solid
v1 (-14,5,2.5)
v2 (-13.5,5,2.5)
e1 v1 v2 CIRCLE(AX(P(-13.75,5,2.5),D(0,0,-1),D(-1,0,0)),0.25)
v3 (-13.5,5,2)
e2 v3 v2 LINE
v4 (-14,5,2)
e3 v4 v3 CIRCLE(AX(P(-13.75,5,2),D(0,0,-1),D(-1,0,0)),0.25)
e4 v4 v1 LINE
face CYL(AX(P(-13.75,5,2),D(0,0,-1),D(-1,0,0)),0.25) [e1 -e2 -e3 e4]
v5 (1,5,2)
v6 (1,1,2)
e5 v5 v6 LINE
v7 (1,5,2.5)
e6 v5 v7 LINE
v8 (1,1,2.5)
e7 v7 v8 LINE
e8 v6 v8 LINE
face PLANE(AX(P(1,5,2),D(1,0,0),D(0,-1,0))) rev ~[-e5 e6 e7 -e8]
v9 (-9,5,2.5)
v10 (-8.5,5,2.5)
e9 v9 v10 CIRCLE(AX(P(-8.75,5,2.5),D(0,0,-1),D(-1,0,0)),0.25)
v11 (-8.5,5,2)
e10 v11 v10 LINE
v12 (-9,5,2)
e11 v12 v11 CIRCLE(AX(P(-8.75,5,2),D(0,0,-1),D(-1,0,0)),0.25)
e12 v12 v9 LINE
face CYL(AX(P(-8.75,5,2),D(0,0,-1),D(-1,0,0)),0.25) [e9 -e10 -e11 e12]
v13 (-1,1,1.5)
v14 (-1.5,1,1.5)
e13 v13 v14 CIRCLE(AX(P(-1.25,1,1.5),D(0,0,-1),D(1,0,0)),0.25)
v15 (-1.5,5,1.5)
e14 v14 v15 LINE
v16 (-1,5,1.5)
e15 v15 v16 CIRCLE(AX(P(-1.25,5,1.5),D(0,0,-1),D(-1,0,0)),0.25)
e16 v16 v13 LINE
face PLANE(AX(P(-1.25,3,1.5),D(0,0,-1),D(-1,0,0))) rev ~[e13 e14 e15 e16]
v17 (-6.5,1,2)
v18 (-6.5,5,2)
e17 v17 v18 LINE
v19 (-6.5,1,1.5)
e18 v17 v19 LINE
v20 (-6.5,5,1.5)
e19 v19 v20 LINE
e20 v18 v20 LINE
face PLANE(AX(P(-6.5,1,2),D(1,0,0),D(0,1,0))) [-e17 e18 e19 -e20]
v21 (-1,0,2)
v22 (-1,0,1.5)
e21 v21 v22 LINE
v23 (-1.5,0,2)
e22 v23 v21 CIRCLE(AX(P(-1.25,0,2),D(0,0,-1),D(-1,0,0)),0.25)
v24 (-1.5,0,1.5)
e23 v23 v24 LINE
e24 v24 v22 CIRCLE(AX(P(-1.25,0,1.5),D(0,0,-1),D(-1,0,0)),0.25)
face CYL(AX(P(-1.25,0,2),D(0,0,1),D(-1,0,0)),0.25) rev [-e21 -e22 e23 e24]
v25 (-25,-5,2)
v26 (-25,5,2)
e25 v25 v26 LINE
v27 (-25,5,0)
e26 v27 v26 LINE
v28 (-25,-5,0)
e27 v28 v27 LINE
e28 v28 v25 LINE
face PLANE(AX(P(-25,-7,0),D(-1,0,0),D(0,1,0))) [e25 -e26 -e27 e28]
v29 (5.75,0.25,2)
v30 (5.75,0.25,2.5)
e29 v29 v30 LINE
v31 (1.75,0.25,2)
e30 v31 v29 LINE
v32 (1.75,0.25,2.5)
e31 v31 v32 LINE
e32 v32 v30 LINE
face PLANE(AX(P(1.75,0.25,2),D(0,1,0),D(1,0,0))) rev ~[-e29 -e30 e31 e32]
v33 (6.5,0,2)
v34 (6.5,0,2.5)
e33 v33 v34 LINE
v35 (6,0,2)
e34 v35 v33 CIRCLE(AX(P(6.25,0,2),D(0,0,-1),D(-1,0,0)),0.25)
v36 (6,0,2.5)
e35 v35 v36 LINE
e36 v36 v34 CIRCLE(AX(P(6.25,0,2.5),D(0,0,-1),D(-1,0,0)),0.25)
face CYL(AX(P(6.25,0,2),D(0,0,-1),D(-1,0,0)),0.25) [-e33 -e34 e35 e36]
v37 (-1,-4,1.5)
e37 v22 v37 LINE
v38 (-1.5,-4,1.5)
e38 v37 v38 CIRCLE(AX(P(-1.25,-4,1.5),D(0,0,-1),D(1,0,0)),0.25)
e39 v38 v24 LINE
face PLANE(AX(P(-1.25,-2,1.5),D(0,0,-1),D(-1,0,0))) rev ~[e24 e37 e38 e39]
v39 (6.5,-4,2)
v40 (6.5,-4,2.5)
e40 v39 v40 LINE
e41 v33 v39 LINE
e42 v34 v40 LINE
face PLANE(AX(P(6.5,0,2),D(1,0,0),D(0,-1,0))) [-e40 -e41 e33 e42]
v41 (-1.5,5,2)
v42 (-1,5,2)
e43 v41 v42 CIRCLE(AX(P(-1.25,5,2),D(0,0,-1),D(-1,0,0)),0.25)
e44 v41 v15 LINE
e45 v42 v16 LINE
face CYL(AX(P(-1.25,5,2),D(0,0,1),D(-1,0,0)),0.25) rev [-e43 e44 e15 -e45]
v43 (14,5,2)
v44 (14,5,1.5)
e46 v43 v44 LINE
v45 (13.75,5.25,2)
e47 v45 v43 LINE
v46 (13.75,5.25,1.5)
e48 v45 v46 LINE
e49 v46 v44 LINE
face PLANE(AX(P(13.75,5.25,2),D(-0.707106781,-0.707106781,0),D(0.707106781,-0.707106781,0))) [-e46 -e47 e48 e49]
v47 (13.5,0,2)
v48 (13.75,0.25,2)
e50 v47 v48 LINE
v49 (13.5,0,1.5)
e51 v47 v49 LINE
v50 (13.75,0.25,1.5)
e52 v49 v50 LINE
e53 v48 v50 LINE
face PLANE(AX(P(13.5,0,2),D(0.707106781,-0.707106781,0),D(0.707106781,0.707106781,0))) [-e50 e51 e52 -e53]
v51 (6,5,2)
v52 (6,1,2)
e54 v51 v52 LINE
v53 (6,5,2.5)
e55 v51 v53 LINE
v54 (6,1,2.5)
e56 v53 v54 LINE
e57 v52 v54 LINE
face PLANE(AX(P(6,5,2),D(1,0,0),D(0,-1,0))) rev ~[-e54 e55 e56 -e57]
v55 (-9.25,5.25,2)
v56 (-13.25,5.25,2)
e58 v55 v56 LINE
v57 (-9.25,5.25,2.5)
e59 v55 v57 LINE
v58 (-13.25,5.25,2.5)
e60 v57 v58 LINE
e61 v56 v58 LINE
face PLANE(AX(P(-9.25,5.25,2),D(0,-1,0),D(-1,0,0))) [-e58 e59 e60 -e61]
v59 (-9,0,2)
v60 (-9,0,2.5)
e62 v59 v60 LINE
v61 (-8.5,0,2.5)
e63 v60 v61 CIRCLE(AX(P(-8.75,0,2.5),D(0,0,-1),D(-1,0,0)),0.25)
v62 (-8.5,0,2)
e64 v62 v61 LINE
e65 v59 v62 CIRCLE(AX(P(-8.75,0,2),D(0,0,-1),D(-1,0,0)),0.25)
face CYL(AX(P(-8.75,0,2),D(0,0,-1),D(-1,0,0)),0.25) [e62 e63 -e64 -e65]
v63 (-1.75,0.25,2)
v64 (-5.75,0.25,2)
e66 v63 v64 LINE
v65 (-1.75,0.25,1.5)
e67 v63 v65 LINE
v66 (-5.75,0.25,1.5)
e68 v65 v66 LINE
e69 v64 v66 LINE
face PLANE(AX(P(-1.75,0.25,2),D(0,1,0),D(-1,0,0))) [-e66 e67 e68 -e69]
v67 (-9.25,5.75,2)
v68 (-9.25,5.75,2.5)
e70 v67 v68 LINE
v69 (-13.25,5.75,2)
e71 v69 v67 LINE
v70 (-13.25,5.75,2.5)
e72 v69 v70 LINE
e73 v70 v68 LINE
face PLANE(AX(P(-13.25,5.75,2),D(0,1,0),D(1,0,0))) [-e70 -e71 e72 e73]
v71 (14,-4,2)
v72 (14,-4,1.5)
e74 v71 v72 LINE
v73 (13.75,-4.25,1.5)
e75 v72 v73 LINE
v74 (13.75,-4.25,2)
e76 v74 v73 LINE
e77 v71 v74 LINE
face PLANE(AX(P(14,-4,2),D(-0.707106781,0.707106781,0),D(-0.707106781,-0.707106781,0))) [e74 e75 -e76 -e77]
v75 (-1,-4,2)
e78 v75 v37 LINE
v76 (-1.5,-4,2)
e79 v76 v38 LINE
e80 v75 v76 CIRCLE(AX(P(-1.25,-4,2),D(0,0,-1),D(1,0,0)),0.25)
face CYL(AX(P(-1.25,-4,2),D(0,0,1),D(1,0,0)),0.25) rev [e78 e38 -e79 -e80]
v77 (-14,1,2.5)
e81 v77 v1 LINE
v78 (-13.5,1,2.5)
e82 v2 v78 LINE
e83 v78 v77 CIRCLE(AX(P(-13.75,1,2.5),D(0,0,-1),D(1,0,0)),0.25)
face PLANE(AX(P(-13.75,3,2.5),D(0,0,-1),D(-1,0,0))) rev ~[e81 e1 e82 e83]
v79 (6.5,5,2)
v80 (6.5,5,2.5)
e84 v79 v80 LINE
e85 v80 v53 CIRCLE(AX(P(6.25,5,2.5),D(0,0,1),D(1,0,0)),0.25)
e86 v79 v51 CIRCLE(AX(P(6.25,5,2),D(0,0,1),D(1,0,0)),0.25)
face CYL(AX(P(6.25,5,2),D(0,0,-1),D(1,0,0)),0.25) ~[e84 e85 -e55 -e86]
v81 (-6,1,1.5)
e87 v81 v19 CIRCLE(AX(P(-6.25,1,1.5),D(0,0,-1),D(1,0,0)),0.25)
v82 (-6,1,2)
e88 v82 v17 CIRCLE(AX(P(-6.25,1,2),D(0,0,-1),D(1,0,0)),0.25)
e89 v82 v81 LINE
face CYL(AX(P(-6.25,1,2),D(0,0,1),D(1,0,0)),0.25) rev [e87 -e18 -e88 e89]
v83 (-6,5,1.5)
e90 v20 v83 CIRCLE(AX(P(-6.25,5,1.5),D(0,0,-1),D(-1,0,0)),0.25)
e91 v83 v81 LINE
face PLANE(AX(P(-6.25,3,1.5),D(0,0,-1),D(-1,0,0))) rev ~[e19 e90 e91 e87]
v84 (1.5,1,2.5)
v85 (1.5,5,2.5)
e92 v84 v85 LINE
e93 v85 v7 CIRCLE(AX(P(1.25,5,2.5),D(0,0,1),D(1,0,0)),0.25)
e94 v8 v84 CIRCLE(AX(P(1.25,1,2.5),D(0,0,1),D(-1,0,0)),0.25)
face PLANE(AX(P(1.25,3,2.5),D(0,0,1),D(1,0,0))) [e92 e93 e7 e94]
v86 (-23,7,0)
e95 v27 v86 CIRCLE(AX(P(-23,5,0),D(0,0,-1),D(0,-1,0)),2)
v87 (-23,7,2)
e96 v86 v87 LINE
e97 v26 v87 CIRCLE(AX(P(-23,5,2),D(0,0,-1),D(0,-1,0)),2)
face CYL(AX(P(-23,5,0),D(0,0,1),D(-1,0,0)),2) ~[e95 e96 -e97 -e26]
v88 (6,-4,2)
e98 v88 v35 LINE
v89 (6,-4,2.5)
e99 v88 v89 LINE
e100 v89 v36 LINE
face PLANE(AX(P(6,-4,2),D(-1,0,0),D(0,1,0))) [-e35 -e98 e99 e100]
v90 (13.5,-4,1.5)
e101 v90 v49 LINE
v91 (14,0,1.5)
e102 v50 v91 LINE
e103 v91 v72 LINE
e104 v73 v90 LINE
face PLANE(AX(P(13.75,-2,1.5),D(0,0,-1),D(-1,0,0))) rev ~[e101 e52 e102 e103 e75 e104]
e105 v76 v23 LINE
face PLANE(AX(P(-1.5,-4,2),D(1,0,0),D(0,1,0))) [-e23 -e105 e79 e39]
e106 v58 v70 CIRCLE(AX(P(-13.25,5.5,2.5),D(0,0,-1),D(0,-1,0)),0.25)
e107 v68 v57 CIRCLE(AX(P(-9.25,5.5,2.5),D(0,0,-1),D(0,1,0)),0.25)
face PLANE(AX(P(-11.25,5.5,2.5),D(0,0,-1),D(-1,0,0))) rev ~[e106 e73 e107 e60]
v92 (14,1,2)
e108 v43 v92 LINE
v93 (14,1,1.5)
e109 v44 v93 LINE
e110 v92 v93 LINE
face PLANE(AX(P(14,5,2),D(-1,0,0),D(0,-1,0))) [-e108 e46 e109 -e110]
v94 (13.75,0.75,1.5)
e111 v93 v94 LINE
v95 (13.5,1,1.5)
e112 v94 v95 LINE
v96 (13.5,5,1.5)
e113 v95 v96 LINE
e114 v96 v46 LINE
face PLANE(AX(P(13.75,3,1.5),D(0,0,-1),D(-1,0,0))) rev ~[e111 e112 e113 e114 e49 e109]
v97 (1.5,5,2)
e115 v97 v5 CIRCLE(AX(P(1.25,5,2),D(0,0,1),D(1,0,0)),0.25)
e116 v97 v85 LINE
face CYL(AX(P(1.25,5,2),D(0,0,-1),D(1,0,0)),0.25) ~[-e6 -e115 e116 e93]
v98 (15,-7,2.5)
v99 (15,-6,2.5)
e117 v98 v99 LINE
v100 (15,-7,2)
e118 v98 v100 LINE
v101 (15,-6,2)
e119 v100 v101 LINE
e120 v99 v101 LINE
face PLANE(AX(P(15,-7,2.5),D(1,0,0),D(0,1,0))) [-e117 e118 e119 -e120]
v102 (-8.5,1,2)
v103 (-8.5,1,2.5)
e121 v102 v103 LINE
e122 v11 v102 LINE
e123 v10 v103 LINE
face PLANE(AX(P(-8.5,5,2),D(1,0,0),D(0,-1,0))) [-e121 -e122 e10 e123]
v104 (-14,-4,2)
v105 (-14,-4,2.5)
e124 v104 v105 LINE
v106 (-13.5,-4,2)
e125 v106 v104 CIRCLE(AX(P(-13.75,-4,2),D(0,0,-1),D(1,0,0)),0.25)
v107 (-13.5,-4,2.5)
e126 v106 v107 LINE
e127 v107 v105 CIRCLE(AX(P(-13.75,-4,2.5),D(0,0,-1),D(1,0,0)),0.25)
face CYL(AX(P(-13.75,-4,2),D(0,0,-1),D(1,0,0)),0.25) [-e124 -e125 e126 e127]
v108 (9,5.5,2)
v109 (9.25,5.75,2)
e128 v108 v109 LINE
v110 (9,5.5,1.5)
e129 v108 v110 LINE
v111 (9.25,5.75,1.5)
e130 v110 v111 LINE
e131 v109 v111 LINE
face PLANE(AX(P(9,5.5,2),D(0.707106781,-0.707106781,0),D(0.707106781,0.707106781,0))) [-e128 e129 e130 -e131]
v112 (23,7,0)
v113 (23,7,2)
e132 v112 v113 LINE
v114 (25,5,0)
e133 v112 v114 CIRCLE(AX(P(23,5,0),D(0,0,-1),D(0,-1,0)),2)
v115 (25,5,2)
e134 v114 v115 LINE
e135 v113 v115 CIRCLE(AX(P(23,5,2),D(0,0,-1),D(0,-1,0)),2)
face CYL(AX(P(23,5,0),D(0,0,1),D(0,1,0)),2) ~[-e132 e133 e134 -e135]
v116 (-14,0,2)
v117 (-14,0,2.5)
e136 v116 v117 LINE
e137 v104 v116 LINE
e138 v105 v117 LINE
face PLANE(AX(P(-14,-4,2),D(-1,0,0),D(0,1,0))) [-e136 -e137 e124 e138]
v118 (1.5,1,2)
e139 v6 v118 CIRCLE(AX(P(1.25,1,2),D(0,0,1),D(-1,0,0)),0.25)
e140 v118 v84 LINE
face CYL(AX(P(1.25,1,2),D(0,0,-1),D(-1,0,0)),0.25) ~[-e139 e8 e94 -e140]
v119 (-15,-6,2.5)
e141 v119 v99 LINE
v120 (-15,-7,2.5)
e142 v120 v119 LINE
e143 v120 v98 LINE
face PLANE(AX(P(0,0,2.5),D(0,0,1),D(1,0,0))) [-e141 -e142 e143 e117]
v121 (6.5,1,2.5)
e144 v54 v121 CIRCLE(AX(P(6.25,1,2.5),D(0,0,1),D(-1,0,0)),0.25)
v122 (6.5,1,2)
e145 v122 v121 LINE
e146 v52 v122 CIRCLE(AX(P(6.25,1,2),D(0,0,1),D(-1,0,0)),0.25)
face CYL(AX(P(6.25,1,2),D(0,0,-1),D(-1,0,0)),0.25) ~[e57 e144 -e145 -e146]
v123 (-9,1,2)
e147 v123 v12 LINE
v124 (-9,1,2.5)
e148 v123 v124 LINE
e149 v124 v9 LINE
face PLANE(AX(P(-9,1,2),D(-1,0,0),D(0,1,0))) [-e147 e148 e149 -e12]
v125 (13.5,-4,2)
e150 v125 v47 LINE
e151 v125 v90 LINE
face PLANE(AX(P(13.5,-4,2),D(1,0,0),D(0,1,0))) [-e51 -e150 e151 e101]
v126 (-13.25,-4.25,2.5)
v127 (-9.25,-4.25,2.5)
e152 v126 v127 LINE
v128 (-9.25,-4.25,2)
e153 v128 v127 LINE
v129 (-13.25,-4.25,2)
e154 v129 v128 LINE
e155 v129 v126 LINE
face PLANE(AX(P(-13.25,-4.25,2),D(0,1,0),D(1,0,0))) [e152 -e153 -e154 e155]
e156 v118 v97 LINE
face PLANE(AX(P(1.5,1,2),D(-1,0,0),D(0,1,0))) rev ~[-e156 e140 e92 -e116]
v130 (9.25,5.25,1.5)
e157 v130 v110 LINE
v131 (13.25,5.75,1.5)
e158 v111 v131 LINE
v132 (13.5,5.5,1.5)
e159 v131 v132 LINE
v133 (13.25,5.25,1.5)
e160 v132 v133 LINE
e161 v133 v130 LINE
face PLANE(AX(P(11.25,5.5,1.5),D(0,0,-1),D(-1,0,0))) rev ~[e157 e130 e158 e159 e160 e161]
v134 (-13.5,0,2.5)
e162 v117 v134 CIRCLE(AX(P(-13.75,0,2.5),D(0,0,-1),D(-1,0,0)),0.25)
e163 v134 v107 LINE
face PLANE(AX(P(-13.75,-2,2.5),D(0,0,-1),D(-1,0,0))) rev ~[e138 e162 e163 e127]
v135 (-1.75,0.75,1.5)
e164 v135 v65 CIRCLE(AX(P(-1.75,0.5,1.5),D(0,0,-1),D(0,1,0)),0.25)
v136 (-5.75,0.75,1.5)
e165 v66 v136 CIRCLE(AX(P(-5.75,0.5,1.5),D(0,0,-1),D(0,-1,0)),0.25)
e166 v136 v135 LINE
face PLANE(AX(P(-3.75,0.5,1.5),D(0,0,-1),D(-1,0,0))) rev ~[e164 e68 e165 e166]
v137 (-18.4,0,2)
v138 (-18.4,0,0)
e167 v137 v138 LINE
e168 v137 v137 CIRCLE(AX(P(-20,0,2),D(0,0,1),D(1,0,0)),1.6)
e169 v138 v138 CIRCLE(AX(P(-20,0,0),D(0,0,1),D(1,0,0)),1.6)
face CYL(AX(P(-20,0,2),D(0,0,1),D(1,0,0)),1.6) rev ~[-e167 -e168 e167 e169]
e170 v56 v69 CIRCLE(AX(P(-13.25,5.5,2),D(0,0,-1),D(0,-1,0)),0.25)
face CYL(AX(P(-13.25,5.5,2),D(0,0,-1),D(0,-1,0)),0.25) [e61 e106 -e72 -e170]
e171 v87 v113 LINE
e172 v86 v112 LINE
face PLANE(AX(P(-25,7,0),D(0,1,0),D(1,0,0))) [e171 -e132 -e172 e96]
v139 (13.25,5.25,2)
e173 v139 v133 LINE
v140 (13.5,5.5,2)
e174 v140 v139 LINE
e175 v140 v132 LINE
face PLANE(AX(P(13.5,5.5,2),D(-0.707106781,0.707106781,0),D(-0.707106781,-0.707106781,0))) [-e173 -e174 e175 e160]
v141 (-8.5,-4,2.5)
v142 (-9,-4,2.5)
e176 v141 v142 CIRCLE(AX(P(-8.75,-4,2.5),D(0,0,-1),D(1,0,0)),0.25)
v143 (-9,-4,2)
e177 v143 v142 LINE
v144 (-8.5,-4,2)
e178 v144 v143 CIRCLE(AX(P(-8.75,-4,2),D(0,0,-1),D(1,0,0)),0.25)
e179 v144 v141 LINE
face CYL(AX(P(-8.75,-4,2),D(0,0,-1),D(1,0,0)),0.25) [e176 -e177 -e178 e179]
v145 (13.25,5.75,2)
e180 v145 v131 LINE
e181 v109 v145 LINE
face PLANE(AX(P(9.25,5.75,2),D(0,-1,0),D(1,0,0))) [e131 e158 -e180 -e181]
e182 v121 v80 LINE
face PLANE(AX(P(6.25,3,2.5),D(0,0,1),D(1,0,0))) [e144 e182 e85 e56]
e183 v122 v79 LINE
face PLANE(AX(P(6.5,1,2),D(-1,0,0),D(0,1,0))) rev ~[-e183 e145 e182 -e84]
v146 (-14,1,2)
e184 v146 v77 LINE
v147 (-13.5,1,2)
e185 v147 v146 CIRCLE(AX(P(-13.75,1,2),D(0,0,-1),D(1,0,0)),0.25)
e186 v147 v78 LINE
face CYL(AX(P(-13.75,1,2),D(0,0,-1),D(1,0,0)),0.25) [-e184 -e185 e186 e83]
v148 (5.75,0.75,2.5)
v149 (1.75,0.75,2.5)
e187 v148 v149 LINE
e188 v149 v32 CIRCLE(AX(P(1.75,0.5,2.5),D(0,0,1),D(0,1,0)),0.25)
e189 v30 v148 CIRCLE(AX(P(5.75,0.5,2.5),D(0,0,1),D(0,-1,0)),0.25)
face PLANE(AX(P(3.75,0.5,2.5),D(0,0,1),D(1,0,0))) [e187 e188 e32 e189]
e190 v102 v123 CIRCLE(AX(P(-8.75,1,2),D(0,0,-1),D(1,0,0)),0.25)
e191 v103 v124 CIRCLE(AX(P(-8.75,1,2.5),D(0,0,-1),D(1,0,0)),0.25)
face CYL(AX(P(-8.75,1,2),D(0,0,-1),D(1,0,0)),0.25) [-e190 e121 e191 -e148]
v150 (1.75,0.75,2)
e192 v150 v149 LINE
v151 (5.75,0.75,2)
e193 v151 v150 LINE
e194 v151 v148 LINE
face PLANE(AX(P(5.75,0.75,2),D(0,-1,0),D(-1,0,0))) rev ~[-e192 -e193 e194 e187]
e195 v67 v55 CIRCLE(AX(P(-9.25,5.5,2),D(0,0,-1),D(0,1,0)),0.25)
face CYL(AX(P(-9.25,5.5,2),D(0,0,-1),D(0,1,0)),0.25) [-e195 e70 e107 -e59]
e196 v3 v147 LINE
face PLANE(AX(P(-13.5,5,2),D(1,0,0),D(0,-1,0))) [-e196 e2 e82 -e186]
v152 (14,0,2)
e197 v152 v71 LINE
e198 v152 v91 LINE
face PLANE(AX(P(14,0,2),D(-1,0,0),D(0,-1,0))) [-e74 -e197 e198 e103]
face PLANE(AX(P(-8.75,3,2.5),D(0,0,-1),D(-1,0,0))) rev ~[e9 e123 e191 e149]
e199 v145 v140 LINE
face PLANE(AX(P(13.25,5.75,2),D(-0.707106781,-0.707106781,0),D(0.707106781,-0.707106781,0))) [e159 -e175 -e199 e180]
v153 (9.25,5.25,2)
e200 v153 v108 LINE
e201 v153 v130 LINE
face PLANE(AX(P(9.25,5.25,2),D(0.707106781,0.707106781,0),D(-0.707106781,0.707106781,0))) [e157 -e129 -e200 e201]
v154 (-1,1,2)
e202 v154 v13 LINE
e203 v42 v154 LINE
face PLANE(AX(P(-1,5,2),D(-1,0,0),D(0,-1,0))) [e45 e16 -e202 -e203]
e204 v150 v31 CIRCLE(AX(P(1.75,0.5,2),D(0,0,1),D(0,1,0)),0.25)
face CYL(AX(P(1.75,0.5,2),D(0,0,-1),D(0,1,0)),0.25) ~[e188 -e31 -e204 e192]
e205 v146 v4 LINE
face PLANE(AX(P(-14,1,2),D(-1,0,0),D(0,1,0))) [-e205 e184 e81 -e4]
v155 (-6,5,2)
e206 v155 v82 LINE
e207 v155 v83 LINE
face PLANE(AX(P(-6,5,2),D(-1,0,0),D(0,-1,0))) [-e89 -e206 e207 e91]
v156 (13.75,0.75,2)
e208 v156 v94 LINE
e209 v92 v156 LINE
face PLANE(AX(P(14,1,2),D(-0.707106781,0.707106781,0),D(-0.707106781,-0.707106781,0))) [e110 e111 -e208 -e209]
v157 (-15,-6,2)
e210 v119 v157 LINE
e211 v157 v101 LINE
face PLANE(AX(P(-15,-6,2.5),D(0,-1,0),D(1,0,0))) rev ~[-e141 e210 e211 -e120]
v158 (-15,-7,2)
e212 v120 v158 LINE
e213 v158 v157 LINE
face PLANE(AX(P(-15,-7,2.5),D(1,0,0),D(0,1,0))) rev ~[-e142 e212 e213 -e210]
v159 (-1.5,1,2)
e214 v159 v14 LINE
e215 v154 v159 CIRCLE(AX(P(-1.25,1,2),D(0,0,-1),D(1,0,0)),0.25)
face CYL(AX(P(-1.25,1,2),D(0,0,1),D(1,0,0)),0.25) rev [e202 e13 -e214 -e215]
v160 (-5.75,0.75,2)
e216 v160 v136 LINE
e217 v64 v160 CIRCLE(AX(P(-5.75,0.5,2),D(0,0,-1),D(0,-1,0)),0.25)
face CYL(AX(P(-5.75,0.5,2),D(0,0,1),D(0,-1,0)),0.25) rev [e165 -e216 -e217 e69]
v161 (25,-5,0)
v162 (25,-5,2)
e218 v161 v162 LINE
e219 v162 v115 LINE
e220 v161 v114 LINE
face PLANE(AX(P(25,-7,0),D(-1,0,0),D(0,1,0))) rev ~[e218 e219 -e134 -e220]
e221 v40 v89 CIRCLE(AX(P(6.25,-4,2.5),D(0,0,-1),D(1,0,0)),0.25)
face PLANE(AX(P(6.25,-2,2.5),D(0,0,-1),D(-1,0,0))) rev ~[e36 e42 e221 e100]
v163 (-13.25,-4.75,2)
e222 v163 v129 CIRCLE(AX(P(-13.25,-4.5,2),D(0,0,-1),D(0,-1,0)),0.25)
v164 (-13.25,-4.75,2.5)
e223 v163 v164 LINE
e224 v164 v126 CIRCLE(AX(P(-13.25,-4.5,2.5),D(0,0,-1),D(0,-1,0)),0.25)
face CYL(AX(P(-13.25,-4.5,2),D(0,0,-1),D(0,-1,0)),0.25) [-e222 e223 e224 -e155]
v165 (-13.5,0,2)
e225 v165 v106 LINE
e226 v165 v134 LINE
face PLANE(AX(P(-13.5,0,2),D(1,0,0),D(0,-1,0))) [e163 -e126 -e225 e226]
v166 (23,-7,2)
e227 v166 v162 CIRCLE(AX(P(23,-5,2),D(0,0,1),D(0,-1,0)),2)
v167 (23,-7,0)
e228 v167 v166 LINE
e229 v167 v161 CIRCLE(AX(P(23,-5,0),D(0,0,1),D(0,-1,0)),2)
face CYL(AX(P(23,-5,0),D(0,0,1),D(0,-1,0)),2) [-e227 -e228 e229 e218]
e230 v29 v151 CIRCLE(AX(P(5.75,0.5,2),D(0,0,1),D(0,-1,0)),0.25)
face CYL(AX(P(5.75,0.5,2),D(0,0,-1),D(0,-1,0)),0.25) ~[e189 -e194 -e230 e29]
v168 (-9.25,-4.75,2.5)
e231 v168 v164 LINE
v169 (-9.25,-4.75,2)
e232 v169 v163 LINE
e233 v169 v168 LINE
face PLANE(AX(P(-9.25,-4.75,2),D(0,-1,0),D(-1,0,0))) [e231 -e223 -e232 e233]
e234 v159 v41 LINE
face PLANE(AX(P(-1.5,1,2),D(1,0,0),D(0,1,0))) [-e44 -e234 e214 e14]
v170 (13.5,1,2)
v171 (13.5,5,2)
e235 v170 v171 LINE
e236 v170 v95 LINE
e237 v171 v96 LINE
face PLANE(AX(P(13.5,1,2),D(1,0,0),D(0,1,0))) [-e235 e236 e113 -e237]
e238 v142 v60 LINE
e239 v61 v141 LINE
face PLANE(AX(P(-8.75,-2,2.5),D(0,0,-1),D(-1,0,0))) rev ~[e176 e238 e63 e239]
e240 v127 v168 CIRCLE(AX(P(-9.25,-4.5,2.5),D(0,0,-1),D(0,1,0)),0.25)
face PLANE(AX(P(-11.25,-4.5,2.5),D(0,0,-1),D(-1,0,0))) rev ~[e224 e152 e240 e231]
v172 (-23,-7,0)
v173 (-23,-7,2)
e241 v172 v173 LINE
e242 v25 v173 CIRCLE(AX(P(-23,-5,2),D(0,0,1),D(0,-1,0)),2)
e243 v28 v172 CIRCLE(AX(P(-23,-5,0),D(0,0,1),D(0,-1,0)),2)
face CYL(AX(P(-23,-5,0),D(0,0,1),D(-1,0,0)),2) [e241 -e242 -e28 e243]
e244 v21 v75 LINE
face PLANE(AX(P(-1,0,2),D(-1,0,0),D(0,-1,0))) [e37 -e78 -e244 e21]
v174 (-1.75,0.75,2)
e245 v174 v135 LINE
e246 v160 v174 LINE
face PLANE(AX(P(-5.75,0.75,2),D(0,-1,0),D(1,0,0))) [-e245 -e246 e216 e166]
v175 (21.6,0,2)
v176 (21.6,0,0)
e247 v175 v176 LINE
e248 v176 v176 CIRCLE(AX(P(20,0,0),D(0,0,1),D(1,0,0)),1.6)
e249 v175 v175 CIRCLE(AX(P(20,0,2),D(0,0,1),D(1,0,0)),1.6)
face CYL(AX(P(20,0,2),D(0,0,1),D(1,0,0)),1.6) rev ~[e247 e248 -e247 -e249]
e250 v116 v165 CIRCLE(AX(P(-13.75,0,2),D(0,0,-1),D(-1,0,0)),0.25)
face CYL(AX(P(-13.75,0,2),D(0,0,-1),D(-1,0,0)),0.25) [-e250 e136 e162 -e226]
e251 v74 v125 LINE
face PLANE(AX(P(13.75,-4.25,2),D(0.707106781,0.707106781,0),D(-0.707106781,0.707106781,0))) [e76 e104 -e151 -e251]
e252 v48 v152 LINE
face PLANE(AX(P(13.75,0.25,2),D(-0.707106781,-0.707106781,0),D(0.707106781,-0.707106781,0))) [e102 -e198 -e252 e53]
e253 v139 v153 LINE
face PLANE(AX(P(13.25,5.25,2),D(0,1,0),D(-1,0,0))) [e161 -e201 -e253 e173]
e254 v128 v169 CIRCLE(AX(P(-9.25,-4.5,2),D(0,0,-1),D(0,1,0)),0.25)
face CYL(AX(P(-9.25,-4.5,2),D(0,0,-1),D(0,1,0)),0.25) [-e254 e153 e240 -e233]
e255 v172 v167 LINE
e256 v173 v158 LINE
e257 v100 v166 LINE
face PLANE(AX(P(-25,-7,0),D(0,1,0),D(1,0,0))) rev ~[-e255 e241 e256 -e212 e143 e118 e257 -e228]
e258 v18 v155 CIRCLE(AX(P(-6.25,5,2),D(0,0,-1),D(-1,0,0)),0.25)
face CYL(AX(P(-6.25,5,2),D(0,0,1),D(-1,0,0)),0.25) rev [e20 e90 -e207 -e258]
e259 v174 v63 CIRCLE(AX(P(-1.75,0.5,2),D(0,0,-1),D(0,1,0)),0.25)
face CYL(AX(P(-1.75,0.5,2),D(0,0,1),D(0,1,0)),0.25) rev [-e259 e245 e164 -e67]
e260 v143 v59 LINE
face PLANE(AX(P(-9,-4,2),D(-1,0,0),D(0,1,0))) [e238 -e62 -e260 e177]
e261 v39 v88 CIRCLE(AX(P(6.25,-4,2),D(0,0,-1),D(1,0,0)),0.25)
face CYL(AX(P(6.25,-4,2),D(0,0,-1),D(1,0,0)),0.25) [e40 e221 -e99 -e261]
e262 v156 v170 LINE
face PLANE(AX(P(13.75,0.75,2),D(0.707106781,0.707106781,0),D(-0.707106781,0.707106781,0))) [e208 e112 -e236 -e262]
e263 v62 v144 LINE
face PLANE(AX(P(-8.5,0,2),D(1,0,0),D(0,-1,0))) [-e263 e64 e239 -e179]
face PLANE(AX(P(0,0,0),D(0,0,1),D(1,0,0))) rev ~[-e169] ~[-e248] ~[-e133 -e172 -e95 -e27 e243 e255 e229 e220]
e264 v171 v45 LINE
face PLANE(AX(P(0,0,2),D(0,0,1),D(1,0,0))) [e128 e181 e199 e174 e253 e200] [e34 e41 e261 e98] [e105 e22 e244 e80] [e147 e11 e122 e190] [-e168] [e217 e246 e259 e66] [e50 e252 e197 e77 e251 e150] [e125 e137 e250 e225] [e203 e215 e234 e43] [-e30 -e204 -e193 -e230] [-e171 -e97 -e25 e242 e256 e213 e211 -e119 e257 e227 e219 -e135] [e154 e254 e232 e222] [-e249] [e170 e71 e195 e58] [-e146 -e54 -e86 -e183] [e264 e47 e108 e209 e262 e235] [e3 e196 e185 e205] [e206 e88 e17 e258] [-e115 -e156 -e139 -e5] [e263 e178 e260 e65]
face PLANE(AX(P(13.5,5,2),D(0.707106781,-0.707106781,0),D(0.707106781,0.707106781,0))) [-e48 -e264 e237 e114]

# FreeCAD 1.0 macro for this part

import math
import FreeCAD as App
import Part
import Sketcher
from FreeCAD import Vector


def edges_at(feature, points):
    """Names of the edges that pass closest to the given points."""
    edges = feature.Shape.Edges
    near = lambda p: min(range(len(edges)), key=lambda i: edges[i].distToShape(Part.Vertex(*p))[0])
    return sorted({f"Edge{near(p) + 1}" for p in points})

doc = App.newDocument("Part")
body = doc.addObject("PartDesign::Body", "Body")

# Sketch on XY plane
sketch1 = doc.addObject("Sketcher::SketchObject", "Sketch")
body.addObject(sketch1)
sketch1.AttachmentSupport = (doc.XY_Plane, [""])
sketch1.MapMode = "FlatFace"
sketch1.addGeometry([
    Part.LineSegment(Vector(-25, 7, 0), Vector(-25, -7, 0)),
    Part.LineSegment(Vector(-25, -7, 0), Vector(25, -7, 0)),
    Part.LineSegment(Vector(25, -7, 0), Vector(25, 7, 0)),
    Part.LineSegment(Vector(25, 7, 0), Vector(-25, 7, 0)),
], False)
sketch1.addConstraint([
    Sketcher.Constraint("Coincident", 0, 2, 1, 1),
    Sketcher.Constraint("Coincident", 1, 2, 2, 1),
    Sketcher.Constraint("Coincident", 2, 2, 3, 1),
    Sketcher.Constraint("Coincident", 3, 2, 0, 1),
    Sketcher.Constraint("Vertical", 0),
    Sketcher.Constraint("Horizontal", 1),
    Sketcher.Constraint("Vertical", 2),
    Sketcher.Constraint("Horizontal", 3),
    Sketcher.Constraint("Symmetric", 0, 2, 2, 2, -1, 1),
    Sketcher.Constraint("DistanceX", 1, 1, 1, 2, 50.0),
    Sketcher.Constraint("DistanceY", 0, 2, 0, 1, 14.0),
])
pad1 = doc.addObject("PartDesign::Pad", "Pad")
body.addObject(pad1)
pad1.Profile = sketch1
pad1.Length = 2.5

# Sketch on XY plane
sketch2 = doc.addObject("Sketcher::SketchObject", "Sketch001")
body.addObject(sketch2)
sketch2.AttachmentSupport = (doc.XY_Plane, [""])
sketch2.MapMode = "FlatFace"
sketch2.AttachmentOffset = App.Placement(Vector(0, 0, 2.5), App.Rotation())
sketch2.addGeometry([
    Part.LineSegment(Vector(-31.2, 13.2, 0), Vector(-31.2, -13.2, 0)),  # 0
    Part.LineSegment(Vector(-31.2, -13.2, 0), Vector(31.2, -13.2, 0)),  # 1
    Part.LineSegment(Vector(31.2, -13.2, 0), Vector(31.2, 13.2, 0)),  # 2
    Part.LineSegment(Vector(31.2, 13.2, 0), Vector(-31.2, 13.2, 0)),  # 3
    Part.LineSegment(Vector(15, -7, 0), Vector(-15, -7, 0)),  # 4
    Part.LineSegment(Vector(-15, -7, 0), Vector(-15, -6, 0)),  # 5
    Part.LineSegment(Vector(-15, -6, 0), Vector(15, -6, 0)),  # 6
    Part.LineSegment(Vector(15, -6, 0), Vector(15, -7, 0)),  # 7
], False)
sketch2.addConstraint([
    Sketcher.Constraint("Coincident", 0, 2, 1, 1),
    Sketcher.Constraint("Coincident", 1, 2, 2, 1),
    Sketcher.Constraint("Coincident", 2, 2, 3, 1),
    Sketcher.Constraint("Coincident", 3, 2, 0, 1),
    Sketcher.Constraint("Coincident", 4, 2, 5, 1),
    Sketcher.Constraint("Coincident", 5, 2, 6, 1),
    Sketcher.Constraint("Coincident", 6, 2, 7, 1),
    Sketcher.Constraint("Coincident", 7, 2, 4, 1),
    Sketcher.Constraint("Vertical", 0),
    Sketcher.Constraint("Horizontal", 1),
    Sketcher.Constraint("Vertical", 2),
    Sketcher.Constraint("Horizontal", 3),
    Sketcher.Constraint("Horizontal", 4),
    Sketcher.Constraint("Vertical", 5),
    Sketcher.Constraint("Horizontal", 6),
    Sketcher.Constraint("Vertical", 7),
    Sketcher.Constraint("Symmetric", 0, 2, 2, 2, -1, 1),
    Sketcher.Constraint("DistanceX", 4, 2, 4, 1, 30.0),
    Sketcher.Constraint("DistanceY", 5, 1, 5, 2, 1.0),
    Sketcher.Constraint("DistanceX", 4, 2, -1, 1, 15.0),
    Sketcher.Constraint("DistanceY", 4, 2, -1, 1, 7.0),
    Sketcher.Constraint("DistanceX", 1, 1, 1, 2, 62.396),
    Sketcher.Constraint("DistanceY", 0, 2, 0, 1, 26.396),
])
pocket1 = doc.addObject("PartDesign::Pocket", "Pocket")
body.addObject(pocket1)
pocket1.Profile = sketch2
pocket1.Length = 0.5

# Sketch on XY plane
sketch3 = doc.addObject("Sketcher::SketchObject", "Sketch002")
body.addObject(sketch3)
sketch3.AttachmentSupport = (doc.XY_Plane, [""])
sketch3.MapMode = "FlatFace"
sketch3.AttachmentOffset = App.Placement(Vector(0, 0, 2), App.Rotation())
sketch3.addGeometry([
    Part.Circle(Vector(-20, 0, 0), Vector(0, 0, 1), 1.6),
    Part.Circle(Vector(20, 0, 0), Vector(0, 0, 1), 1.6),
], False)
sketch3.addConstraint([
    Sketcher.Constraint("Equal", 0, 1),
    Sketcher.Constraint("Symmetric", 0, 3, 1, 3, -1, 1),
    Sketcher.Constraint("PointOnObject", 0, 3, -1),
    Sketcher.Constraint("Diameter", 0, 3.2),
    Sketcher.Constraint("DistanceX", 0, 3, -1, 1, 20.0),
])
pocket2 = doc.addObject("PartDesign::Pocket", "Pocket001")
body.addObject(pocket2)
pocket2.Profile = sketch3
pocket2.Length = 2
doc.recompute()

fillet = doc.addObject("PartDesign::Fillet", "Fillet")
body.addObject(fillet)
fillet.Base = (pocket2, edges_at(pocket2, [
    (25, -7, 1),
    (-25, -7, 1),
    (-25, 7, 1),
    (25, 7, 1),
]))
fillet.Radius = 2

# Sketch on XY plane
sketch4 = doc.addObject("Sketcher::SketchObject", "Sketch003")
body.addObject(sketch4)
sketch4.AttachmentSupport = (doc.XY_Plane, [""])
sketch4.MapMode = "FlatFace"
sketch4.AttachmentOffset = App.Placement(Vector(0, 0, 2), App.Rotation())
sketch4.addGeometry([
    Part.LineSegment(Vector(-1.75, 0.75, 0), Vector(-5.75, 0.75, 0)),  # 0
    Part.ArcOfCircle(Part.Circle(Vector(-5.75, 0.5, 0), Vector(0, 0, 1), 0.25), math.radians(90), math.radians(270)),  # 1
    Part.LineSegment(Vector(-5.75, 0.25, 0), Vector(-1.75, 0.25, 0)),  # 2
    Part.ArcOfCircle(Part.Circle(Vector(-1.75, 0.5, 0), Vector(0, 0, 1), 0.25), math.radians(-90), math.radians(90)),  # 3
    Part.LineSegment(Vector(-6.5, 5, 0), Vector(-6.5, 1, 0)),  # 4
    Part.ArcOfCircle(Part.Circle(Vector(-6.25, 1, 0), Vector(0, 0, 1), 0.25), math.radians(180), math.radians(360)),  # 5
    Part.LineSegment(Vector(-6, 1, 0), Vector(-6, 5, 0)),  # 6
    Part.ArcOfCircle(Part.Circle(Vector(-6.25, 5, 0), Vector(0, 0, 1), 0.25), math.radians(0), math.radians(180)),  # 7
    Part.LineSegment(Vector(-1, -4, 0), Vector(-1, 0, 0)),  # 8
    Part.ArcOfCircle(Part.Circle(Vector(-1.25, 0, 0), Vector(0, 0, 1), 0.25), math.radians(0), math.radians(180)),  # 9
    Part.LineSegment(Vector(-1.5, 0, 0), Vector(-1.5, -4, 0)),  # 10
    Part.ArcOfCircle(Part.Circle(Vector(-1.25, -4, 0), Vector(0, 0, 1), 0.25), math.radians(180), math.radians(360)),  # 11
    Part.LineSegment(Vector(-1.5, 5, 0), Vector(-1.5, 1, 0)),  # 12
    Part.ArcOfCircle(Part.Circle(Vector(-1.25, 1, 0), Vector(0, 0, 1), 0.25), math.radians(180), math.radians(360)),  # 13
    Part.LineSegment(Vector(-1, 1, 0), Vector(-1, 5, 0)),  # 14
    Part.ArcOfCircle(Part.Circle(Vector(-1.25, 5, 0), Vector(0, 0, 1), 0.25), math.radians(0), math.radians(180)),  # 15
    Part.LineSegment(Vector(14, -4, 0), Vector(14, 0, 0)),  # 16
    Part.LineSegment(Vector(14, 0, 0), Vector(13.75, 0.25, 0)),  # 17
    Part.LineSegment(Vector(13.75, 0.25, 0), Vector(13.5, 0, 0)),  # 18
    Part.LineSegment(Vector(13.5, 0, 0), Vector(13.5, -4, 0)),  # 19
    Part.LineSegment(Vector(13.5, -4, 0), Vector(13.75, -4.25, 0)),  # 20
    Part.LineSegment(Vector(13.75, -4.25, 0), Vector(14, -4, 0)),  # 21
    Part.LineSegment(Vector(9.25, 5.25, 0), Vector(13.25, 5.25, 0)),  # 22
    Part.LineSegment(Vector(13.25, 5.25, 0), Vector(13.5, 5.5, 0)),  # 23
    Part.LineSegment(Vector(13.5, 5.5, 0), Vector(13.25, 5.75, 0)),  # 24
    Part.LineSegment(Vector(13.25, 5.75, 0), Vector(9.25, 5.75, 0)),  # 25
    Part.LineSegment(Vector(9.25, 5.75, 0), Vector(9, 5.5, 0)),  # 26
    Part.LineSegment(Vector(9, 5.5, 0), Vector(9.25, 5.25, 0)),  # 27
    Part.LineSegment(Vector(13.5, 5, 0), Vector(13.5, 1, 0)),  # 28
    Part.LineSegment(Vector(13.5, 1, 0), Vector(13.75, 0.75, 0)),  # 29
    Part.LineSegment(Vector(13.75, 0.75, 0), Vector(14, 1, 0)),  # 30
    Part.LineSegment(Vector(14, 1, 0), Vector(14, 5, 0)),  # 31
    Part.LineSegment(Vector(14, 5, 0), Vector(13.75, 5.25, 0)),  # 32
    Part.LineSegment(Vector(13.75, 5.25, 0), Vector(13.5, 5, 0)),  # 33
], False)
sketch4.addConstraint([
    Sketcher.Constraint("Tangent", 0, 2, 1, 1),
    Sketcher.Constraint("Tangent", 1, 2, 2, 1),
    Sketcher.Constraint("Tangent", 2, 2, 3, 1),
    Sketcher.Constraint("Tangent", 3, 2, 0, 1),
    Sketcher.Constraint("Tangent", 4, 2, 5, 1),
    Sketcher.Constraint("Tangent", 5, 2, 6, 1),
    Sketcher.Constraint("Tangent", 6, 2, 7, 1),
    Sketcher.Constraint("Tangent", 7, 2, 4, 1),
    Sketcher.Constraint("Tangent", 8, 2, 9, 1),
    Sketcher.Constraint("Tangent", 9, 2, 10, 1),
    Sketcher.Constraint("Tangent", 10, 2, 11, 1),
    Sketcher.Constraint("Tangent", 11, 2, 8, 1),
    Sketcher.Constraint("Tangent", 12, 2, 13, 1),
    Sketcher.Constraint("Tangent", 13, 2, 14, 1),
    Sketcher.Constraint("Tangent", 14, 2, 15, 1),
    Sketcher.Constraint("Tangent", 15, 2, 12, 1),
    Sketcher.Constraint("Coincident", 16, 2, 17, 1),
    Sketcher.Constraint("Coincident", 17, 2, 18, 1),
    Sketcher.Constraint("Coincident", 18, 2, 19, 1),
    Sketcher.Constraint("Coincident", 19, 2, 20, 1),
    Sketcher.Constraint("Coincident", 20, 2, 21, 1),
    Sketcher.Constraint("Coincident", 21, 2, 16, 1),
    Sketcher.Constraint("Coincident", 22, 2, 23, 1),
    Sketcher.Constraint("Coincident", 23, 2, 24, 1),
    Sketcher.Constraint("Coincident", 24, 2, 25, 1),
    Sketcher.Constraint("Coincident", 25, 2, 26, 1),
    Sketcher.Constraint("Coincident", 26, 2, 27, 1),
    Sketcher.Constraint("Coincident", 27, 2, 22, 1),
    Sketcher.Constraint("Coincident", 28, 2, 29, 1),
    Sketcher.Constraint("Coincident", 29, 2, 30, 1),
    Sketcher.Constraint("Coincident", 30, 2, 31, 1),
    Sketcher.Constraint("Coincident", 31, 2, 32, 1),
    Sketcher.Constraint("Coincident", 32, 2, 33, 1),
    Sketcher.Constraint("Coincident", 33, 2, 28, 1),
    Sketcher.Constraint("Horizontal", 0),
    Sketcher.Constraint("Horizontal", 2),
    Sketcher.Constraint("Vertical", 4),
    Sketcher.Constraint("Vertical", 6),
    Sketcher.Constraint("Vertical", 8),
    Sketcher.Constraint("Vertical", 10),
    Sketcher.Constraint("Vertical", 12),
    Sketcher.Constraint("Vertical", 14),
    Sketcher.Constraint("Vertical", 16),
    Sketcher.Constraint("Vertical", 19),
    Sketcher.Constraint("Horizontal", 22),
    Sketcher.Constraint("Horizontal", 25),
    Sketcher.Constraint("Vertical", 28),
    Sketcher.Constraint("Vertical", 31),
    Sketcher.Constraint("Equal", 3, 5),
    Sketcher.Constraint("Equal", 7, 9),
    Sketcher.Constraint("Equal", 11, 13),
    Sketcher.Constraint("PointOnObject", 9, 3, -1),
    Sketcher.Constraint("PointOnObject", 16, 2, -1),
    Sketcher.Constraint("PointOnObject", 18, 2, -1),
    Sketcher.Constraint("Perpendicular", 17, 18),
    Sketcher.Constraint("Perpendicular", 18, 20),
    Sketcher.Constraint("Perpendicular", 20, 21),
    Sketcher.Constraint("Parallel", 21, 23),
    Sketcher.Constraint("Perpendicular", 23, 24),
    Sketcher.Constraint("Perpendicular", 24, 26),
    Sketcher.Constraint("Perpendicular", 26, 27),
    Sketcher.Constraint("Parallel", 27, 29),
    Sketcher.Constraint("Perpendicular", 29, 30),
    Sketcher.Constraint("Perpendicular", 30, 32),
    Sketcher.Constraint("Perpendicular", 32, 33),
    Sketcher.Constraint("Horizontal", 5, 3, 13, 3),
    Sketcher.Constraint("Horizontal", 7, 3, 15, 3),
    Sketcher.Constraint("Horizontal", 2, 2, 17, 2),
    Sketcher.Constraint("Horizontal", 11, 2, 19, 2),
    Sketcher.Constraint("Horizontal", 19, 2, 21, 2),
    Sketcher.Constraint("Horizontal", 23, 2, 26, 2),
    Sketcher.Constraint("Horizontal", 13, 2, 28, 2),
    Sketcher.Constraint("Horizontal", 3, 2, 29, 2),
    Sketcher.Constraint("Horizontal", 28, 2, 30, 2),
    Sketcher.Constraint("Horizontal", 15, 2, 31, 2),
    Sketcher.Constraint("Horizontal", 27, 2, 32, 2),
    Sketcher.Constraint("Horizontal", 31, 2, 33, 2),
    Sketcher.Constraint("Vertical", 11, 3, 13, 3),
    Sketcher.Constraint("Vertical", 17, 2, 20, 2),
    Sketcher.Constraint("Vertical", 19, 2, 23, 2),
    Sketcher.Constraint("Vertical", 22, 2, 24, 2),
    Sketcher.Constraint("Vertical", 23, 2, 28, 2),
    Sketcher.Constraint("Vertical", 20, 2, 29, 2),
    Sketcher.Constraint("Equal", 2, 22),
    Sketcher.Constraint("Equal", 25, 4),
    Sketcher.Constraint("Equal", 6, 8),
    Sketcher.Constraint("Equal", 21, 23),
    Sketcher.Constraint("DistanceX", 0, 2, 0, 1, 4.0),
    Sketcher.Constraint("Radius", 1, 0.25),
    Sketcher.Constraint("DistanceY", -1, 1, 5, 3, 1.0),
    Sketcher.Constraint("DistanceX", 5, 2, -1, 1, 6.0),
    Sketcher.Constraint("DistanceX", 8, 2, -1, 1, 1.0),
    Sketcher.Constraint("DistanceX", -1, 1, 16, 2, 14.0),
    Sketcher.Constraint("DistanceX", 5, 3, 1, 3, 0.5),
])
pocket3 = doc.addObject("PartDesign::Pocket", "Pocket002")
body.addObject(pocket3)
pocket3.Profile = sketch4
pocket3.Length = 0.5

# Sketch on XY plane
sketch5 = doc.addObject("Sketcher::SketchObject", "Sketch004")
body.addObject(sketch5)
sketch5.AttachmentSupport = (doc.XY_Plane, [""])
sketch5.MapMode = "FlatFace"
sketch5.AttachmentOffset = App.Placement(Vector(0, 0, 2), App.Rotation())
sketch5.addGeometry([
    Part.LineSegment(Vector(-9, 5, 0), Vector(-9, 1, 0)),  # 0
    Part.ArcOfCircle(Part.Circle(Vector(-8.75, 1, 0), Vector(0, 0, 1), 0.25), math.radians(180), math.radians(360)),  # 1
    Part.LineSegment(Vector(-8.5, 1, 0), Vector(-8.5, 5, 0)),  # 2
    Part.ArcOfCircle(Part.Circle(Vector(-8.75, 5, 0), Vector(0, 0, 1), 0.25), math.radians(0), math.radians(180)),  # 3
    Part.LineSegment(Vector(-9.25, -4.25, 0), Vector(-13.25, -4.25, 0)),  # 4
    Part.ArcOfCircle(Part.Circle(Vector(-13.25, -4.5, 0), Vector(0, 0, 1), 0.25), math.radians(90), math.radians(270)),  # 5
    Part.LineSegment(Vector(-13.25, -4.75, 0), Vector(-9.25, -4.75, 0)),  # 6
    Part.ArcOfCircle(Part.Circle(Vector(-9.25, -4.5, 0), Vector(0, 0, 1), 0.25), math.radians(-90), math.radians(90)),  # 7
    Part.LineSegment(Vector(-9.25, 5.75, 0), Vector(-13.25, 5.75, 0)),  # 8
    Part.ArcOfCircle(Part.Circle(Vector(-13.25, 5.5, 0), Vector(0, 0, 1), 0.25), math.radians(90), math.radians(270)),  # 9
    Part.LineSegment(Vector(-13.25, 5.25, 0), Vector(-9.25, 5.25, 0)),  # 10
    Part.ArcOfCircle(Part.Circle(Vector(-9.25, 5.5, 0), Vector(0, 0, 1), 0.25), math.radians(-90), math.radians(90)),  # 11
    Part.LineSegment(Vector(-13.5, -4, 0), Vector(-13.5, 0, 0)),  # 12
    Part.ArcOfCircle(Part.Circle(Vector(-13.75, 0, 0), Vector(0, 0, 1), 0.25), math.radians(0), math.radians(180)),  # 13
    Part.LineSegment(Vector(-14, 0, 0), Vector(-14, -4, 0)),  # 14
    Part.ArcOfCircle(Part.Circle(Vector(-13.75, -4, 0), Vector(0, 0, 1), 0.25), math.radians(180), math.radians(360)),  # 15
    Part.LineSegment(Vector(-14, 5, 0), Vector(-14, 1, 0)),  # 16
    Part.ArcOfCircle(Part.Circle(Vector(-13.75, 1, 0), Vector(0, 0, 1), 0.25), math.radians(180), math.radians(360)),  # 17
    Part.LineSegment(Vector(-13.5, 1, 0), Vector(-13.5, 5, 0)),  # 18
    Part.ArcOfCircle(Part.Circle(Vector(-13.75, 5, 0), Vector(0, 0, 1), 0.25), math.radians(0), math.radians(180)),  # 19
    Part.LineSegment(Vector(-8.5, -4, 0), Vector(-8.5, 0, 0)),  # 20
    Part.ArcOfCircle(Part.Circle(Vector(-8.75, 0, 0), Vector(0, 0, 1), 0.25), math.radians(0), math.radians(180)),  # 21
    Part.LineSegment(Vector(-9, 0, 0), Vector(-9, -4, 0)),  # 22
    Part.ArcOfCircle(Part.Circle(Vector(-8.75, -4, 0), Vector(0, 0, 1), 0.25), math.radians(180), math.radians(360)),  # 23
    Part.LineSegment(Vector(1.5, 1, 0), Vector(1.5, 5, 0)),  # 24
    Part.ArcOfCircle(Part.Circle(Vector(1.25, 5, 0), Vector(0, 0, 1), 0.25), math.radians(0), math.radians(180)),  # 25
    Part.LineSegment(Vector(1, 5, 0), Vector(1, 1, 0)),  # 26
    Part.ArcOfCircle(Part.Circle(Vector(1.25, 1, 0), Vector(0, 0, 1), 0.25), math.radians(180), math.radians(360)),  # 27
    Part.LineSegment(Vector(1.75, 0.25, 0), Vector(5.75, 0.25, 0)),  # 28
    Part.ArcOfCircle(Part.Circle(Vector(5.75, 0.5, 0), Vector(0, 0, 1), 0.25), math.radians(-90), math.radians(90)),  # 29
    Part.LineSegment(Vector(5.75, 0.75, 0), Vector(1.75, 0.75, 0)),  # 30
    Part.ArcOfCircle(Part.Circle(Vector(1.75, 0.5, 0), Vector(0, 0, 1), 0.25), math.radians(90), math.radians(270)),  # 31
    Part.LineSegment(Vector(6.5, 1, 0), Vector(6.5, 5, 0)),  # 32
    Part.ArcOfCircle(Part.Circle(Vector(6.25, 5, 0), Vector(0, 0, 1), 0.25), math.radians(0), math.radians(180)),  # 33
    Part.LineSegment(Vector(6, 5, 0), Vector(6, 1, 0)),  # 34
    Part.ArcOfCircle(Part.Circle(Vector(6.25, 1, 0), Vector(0, 0, 1), 0.25), math.radians(180), math.radians(360)),  # 35
    Part.LineSegment(Vector(6.5, -4, 0), Vector(6.5, 0, 0)),  # 36
    Part.ArcOfCircle(Part.Circle(Vector(6.25, 0, 0), Vector(0, 0, 1), 0.25), math.radians(0), math.radians(180)),  # 37
    Part.LineSegment(Vector(6, 0, 0), Vector(6, -4, 0)),  # 38
    Part.ArcOfCircle(Part.Circle(Vector(6.25, -4, 0), Vector(0, 0, 1), 0.25), math.radians(180), math.radians(360)),  # 39
], False)
sketch5.addConstraint([
    Sketcher.Constraint("Tangent", 0, 2, 1, 1),
    Sketcher.Constraint("Tangent", 1, 2, 2, 1),
    Sketcher.Constraint("Tangent", 2, 2, 3, 1),
    Sketcher.Constraint("Tangent", 3, 2, 0, 1),
    Sketcher.Constraint("Tangent", 4, 2, 5, 1),
    Sketcher.Constraint("Tangent", 5, 2, 6, 1),
    Sketcher.Constraint("Tangent", 6, 2, 7, 1),
    Sketcher.Constraint("Tangent", 7, 2, 4, 1),
    Sketcher.Constraint("Tangent", 8, 2, 9, 1),
    Sketcher.Constraint("Tangent", 9, 2, 10, 1),
    Sketcher.Constraint("Tangent", 10, 2, 11, 1),
    Sketcher.Constraint("Tangent", 11, 2, 8, 1),
    Sketcher.Constraint("Tangent", 12, 2, 13, 1),
    Sketcher.Constraint("Tangent", 13, 2, 14, 1),
    Sketcher.Constraint("Tangent", 14, 2, 15, 1),
    Sketcher.Constraint("Tangent", 15, 2, 12, 1),
    Sketcher.Constraint("Tangent", 16, 2, 17, 1),
    Sketcher.Constraint("Tangent", 17, 2, 18, 1),
    Sketcher.Constraint("Tangent", 18, 2, 19, 1),
    Sketcher.Constraint("Tangent", 19, 2, 16, 1),
    Sketcher.Constraint("Tangent", 20, 2, 21, 1),
    Sketcher.Constraint("Tangent", 21, 2, 22, 1),
    Sketcher.Constraint("Tangent", 22, 2, 23, 1),
    Sketcher.Constraint("Tangent", 23, 2, 20, 1),
    Sketcher.Constraint("Tangent", 24, 2, 25, 1),
    Sketcher.Constraint("Tangent", 25, 2, 26, 1),
    Sketcher.Constraint("Tangent", 26, 2, 27, 1),
    Sketcher.Constraint("Tangent", 27, 2, 24, 1),
    Sketcher.Constraint("Tangent", 28, 2, 29, 1),
    Sketcher.Constraint("Tangent", 29, 2, 30, 1),
    Sketcher.Constraint("Tangent", 30, 2, 31, 1),
    Sketcher.Constraint("Tangent", 31, 2, 28, 1),
    Sketcher.Constraint("Tangent", 32, 2, 33, 1),
    Sketcher.Constraint("Tangent", 33, 2, 34, 1),
    Sketcher.Constraint("Tangent", 34, 2, 35, 1),
    Sketcher.Constraint("Tangent", 35, 2, 32, 1),
    Sketcher.Constraint("Tangent", 36, 2, 37, 1),
    Sketcher.Constraint("Tangent", 37, 2, 38, 1),
    Sketcher.Constraint("Tangent", 38, 2, 39, 1),
    Sketcher.Constraint("Tangent", 39, 2, 36, 1),
    Sketcher.Constraint("Vertical", 0),
    Sketcher.Constraint("Vertical", 2),
    Sketcher.Constraint("Horizontal", 4),
    Sketcher.Constraint("Horizontal", 6),
    Sketcher.Constraint("Horizontal", 8),
    Sketcher.Constraint("Horizontal", 10),
    Sketcher.Constraint("Vertical", 12),
    Sketcher.Constraint("Vertical", 14),
    Sketcher.Constraint("Vertical", 16),
    Sketcher.Constraint("Vertical", 18),
    Sketcher.Constraint("Vertical", 20),
    Sketcher.Constraint("Vertical", 22),
    Sketcher.Constraint("Vertical", 24),
    Sketcher.Constraint("Vertical", 26),
    Sketcher.Constraint("Horizontal", 28),
    Sketcher.Constraint("Horizontal", 30),
    Sketcher.Constraint("Vertical", 32),
    Sketcher.Constraint("Vertical", 34),
    Sketcher.Constraint("Vertical", 36),
    Sketcher.Constraint("Vertical", 38),
    Sketcher.Constraint("Equal", 3, 5),
    Sketcher.Constraint("Equal", 7, 9),
    Sketcher.Constraint("Equal", 11, 13),
    Sketcher.Constraint("Equal", 15, 17),
    Sketcher.Constraint("Equal", 19, 21),
    Sketcher.Constraint("Equal", 23, 25),
    Sketcher.Constraint("Equal", 27, 29),
    Sketcher.Constraint("Equal", 31, 33),
    Sketcher.Constraint("Equal", 35, 37),
    Sketcher.Constraint("PointOnObject", 13, 3, -1),
    Sketcher.Constraint("PointOnObject", 21, 3, -1),
    Sketcher.Constraint("PointOnObject", 37, 3, -1),
    Sketcher.Constraint("Horizontal", 1, 3, 17, 3),
    Sketcher.Constraint("Horizontal", 3, 3, 19, 3),
    Sketcher.Constraint("Horizontal", 15, 3, 23, 3),
    Sketcher.Constraint("Horizontal", 19, 3, 25, 3),
    Sketcher.Constraint("Horizontal", 17, 3, 27, 3),
    Sketcher.Constraint("Horizontal", 25, 3, 33, 3),
    Sketcher.Constraint("Horizontal", 27, 3, 35, 3),
    Sketcher.Constraint("Horizontal", 23, 3, 39, 3),
    Sketcher.Constraint("Vertical", 5, 3, 9, 3),
    Sketcher.Constraint("Vertical", 7, 3, 11, 3),
    Sketcher.Constraint("Vertical", 15, 3, 17, 3),
    Sketcher.Constraint("Vertical", 3, 3, 21, 3),
    Sketcher.Constraint("Vertical", 35, 3, 37, 3),
    Sketcher.Constraint("Equal", 10, 28),
    Sketcher.Constraint("Equal", 30, 0),
    Sketcher.Constraint("Equal", 2, 12),
    Sketcher.Constraint("DistanceX", 4, 2, 4, 1, 4.0),
    Sketcher.Constraint("Radius", 1, 0.25),
    Sketcher.Constraint("DistanceY", -1, 1, 1, 3, 1.0),
    Sketcher.Constraint("DistanceX", 0, 2, -1, 1, 9.0),
    Sketcher.Constraint("DistanceX", 13, 2, -1, 1, 14.0),
    Sketcher.Constraint("DistanceX", -1, 1, 25, 2, 1.0),
    Sketcher.Constraint("DistanceX", -1, 1, 33, 2, 6.0),
    Sketcher.Constraint("DistanceY", 5, 3, 9, 3, 10.0),
    Sketcher.Constraint("DistanceY", 5, 3, -1, 1, 4.5),
    Sketcher.Constraint("DistanceY", -1, 1, 29, 3, 0.5),
    Sketcher.Constraint("DistanceX", 5, 3, 1, 3, 4.5),
    Sketcher.Constraint("DistanceX", 27, 3, 29, 3, 4.5),
])
pad2 = doc.addObject("PartDesign::Pad", "Pad001")
body.addObject(pad2)
pad2.Profile = sketch5
pad2.Length = 0.5

doc.recompute()
